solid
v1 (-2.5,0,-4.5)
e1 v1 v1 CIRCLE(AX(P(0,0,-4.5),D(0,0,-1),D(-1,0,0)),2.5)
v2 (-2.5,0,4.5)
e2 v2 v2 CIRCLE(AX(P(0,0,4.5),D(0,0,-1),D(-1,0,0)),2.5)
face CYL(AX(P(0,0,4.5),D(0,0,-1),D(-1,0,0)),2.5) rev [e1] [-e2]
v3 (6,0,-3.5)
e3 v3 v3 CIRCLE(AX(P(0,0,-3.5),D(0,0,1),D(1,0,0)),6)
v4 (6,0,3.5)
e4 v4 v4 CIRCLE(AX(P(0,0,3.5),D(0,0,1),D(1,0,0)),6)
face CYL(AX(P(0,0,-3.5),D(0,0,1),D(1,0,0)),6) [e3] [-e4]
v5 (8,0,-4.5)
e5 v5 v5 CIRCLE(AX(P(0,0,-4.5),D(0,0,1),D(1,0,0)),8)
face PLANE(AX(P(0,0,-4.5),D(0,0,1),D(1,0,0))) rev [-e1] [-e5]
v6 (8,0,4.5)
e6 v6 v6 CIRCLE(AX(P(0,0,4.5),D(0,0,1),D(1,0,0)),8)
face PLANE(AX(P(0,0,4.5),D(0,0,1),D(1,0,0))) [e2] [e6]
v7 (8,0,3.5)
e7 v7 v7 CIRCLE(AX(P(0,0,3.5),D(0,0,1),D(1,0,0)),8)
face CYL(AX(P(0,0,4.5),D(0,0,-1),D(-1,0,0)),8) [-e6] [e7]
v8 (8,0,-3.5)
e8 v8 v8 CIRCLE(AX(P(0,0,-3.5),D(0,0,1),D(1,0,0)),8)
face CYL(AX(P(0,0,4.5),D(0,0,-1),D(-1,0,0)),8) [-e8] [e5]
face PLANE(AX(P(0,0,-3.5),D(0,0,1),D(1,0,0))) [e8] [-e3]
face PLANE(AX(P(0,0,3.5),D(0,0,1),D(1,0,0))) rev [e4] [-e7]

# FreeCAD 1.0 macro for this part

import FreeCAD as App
import Part
import Sketcher
Q = App.Units.Quantity

doc = App.newDocument("Part")
body = doc.addObject("PartDesign::Body", "Body")

# Sketch on XY plane
sketch1 = body.newObject("Sketcher::SketchObject", "Sketch")
sketch1.AttachmentSupport = (doc.getObject("XY_Plane"), [""])
sketch1.MapMode = "FlatFace"
sketch1.addGeometry(Part.Circle(App.Vector(0, 0, 0), App.Vector(0, 0, 1), 8), False)
sketch1.addConstraint([
    Sketcher.Constraint("Coincident", 0, 3, -1, 1),
    Sketcher.Constraint("Diameter", 0, Q("16 mm")),
])
pad1 = body.newObject("PartDesign::Pad", "Pad")
pad1.Profile = sketch1
pad1.Length = 9
pad1.Midplane = True

# Sketch on XY plane
sketch2 = body.newObject("Sketcher::SketchObject", "Sketch001")
sketch2.AttachmentSupport = (doc.getObject("XY_Plane"), [""])
sketch2.MapMode = "FlatFace"
sketch2.AttachmentOffset = App.Placement(App.Vector(0, 0, -4.5), App.Rotation())
sketch2.addGeometry(Part.Circle(App.Vector(0, 0, 0), App.Vector(0, 0, 1), 2.5), False)
sketch2.addConstraint([
    Sketcher.Constraint("Coincident", 0, 3, -1, 1),
    Sketcher.Constraint("Diameter", 0, Q("5 mm")),
])
pocket1 = body.newObject("PartDesign::Pocket", "Pocket")
pocket1.Profile = sketch2
pocket1.Type = "ThroughAll"
pocket1.Reversed = True

# Sketch on XY plane
sketch3 = body.newObject("Sketcher::SketchObject", "Sketch002")
sketch3.AttachmentSupport = (doc.getObject("XY_Plane"), [""])
sketch3.MapMode = "FlatFace"
sketch3.addGeometry([
    Part.Circle(App.Vector(0, 0, 0), App.Vector(0, 0, 1), 8),
    Part.Circle(App.Vector(0, 0, 0), App.Vector(0, 0, 1), 6),
], False)
sketch3.addConstraint([
    Sketcher.Constraint("Coincident", 0, 3, -1, 1),
    Sketcher.Constraint("Coincident", 1, 3, -1, 1),
    Sketcher.Constraint("Diameter", 0, Q("16 mm")),
    Sketcher.Constraint("Diameter", 1, Q("12 mm")),
])
pocket2 = body.newObject("PartDesign::Pocket", "Pocket001")
pocket2.Profile = sketch3
pocket2.Length = 7
pocket2.Midplane = True

doc.recompute()
